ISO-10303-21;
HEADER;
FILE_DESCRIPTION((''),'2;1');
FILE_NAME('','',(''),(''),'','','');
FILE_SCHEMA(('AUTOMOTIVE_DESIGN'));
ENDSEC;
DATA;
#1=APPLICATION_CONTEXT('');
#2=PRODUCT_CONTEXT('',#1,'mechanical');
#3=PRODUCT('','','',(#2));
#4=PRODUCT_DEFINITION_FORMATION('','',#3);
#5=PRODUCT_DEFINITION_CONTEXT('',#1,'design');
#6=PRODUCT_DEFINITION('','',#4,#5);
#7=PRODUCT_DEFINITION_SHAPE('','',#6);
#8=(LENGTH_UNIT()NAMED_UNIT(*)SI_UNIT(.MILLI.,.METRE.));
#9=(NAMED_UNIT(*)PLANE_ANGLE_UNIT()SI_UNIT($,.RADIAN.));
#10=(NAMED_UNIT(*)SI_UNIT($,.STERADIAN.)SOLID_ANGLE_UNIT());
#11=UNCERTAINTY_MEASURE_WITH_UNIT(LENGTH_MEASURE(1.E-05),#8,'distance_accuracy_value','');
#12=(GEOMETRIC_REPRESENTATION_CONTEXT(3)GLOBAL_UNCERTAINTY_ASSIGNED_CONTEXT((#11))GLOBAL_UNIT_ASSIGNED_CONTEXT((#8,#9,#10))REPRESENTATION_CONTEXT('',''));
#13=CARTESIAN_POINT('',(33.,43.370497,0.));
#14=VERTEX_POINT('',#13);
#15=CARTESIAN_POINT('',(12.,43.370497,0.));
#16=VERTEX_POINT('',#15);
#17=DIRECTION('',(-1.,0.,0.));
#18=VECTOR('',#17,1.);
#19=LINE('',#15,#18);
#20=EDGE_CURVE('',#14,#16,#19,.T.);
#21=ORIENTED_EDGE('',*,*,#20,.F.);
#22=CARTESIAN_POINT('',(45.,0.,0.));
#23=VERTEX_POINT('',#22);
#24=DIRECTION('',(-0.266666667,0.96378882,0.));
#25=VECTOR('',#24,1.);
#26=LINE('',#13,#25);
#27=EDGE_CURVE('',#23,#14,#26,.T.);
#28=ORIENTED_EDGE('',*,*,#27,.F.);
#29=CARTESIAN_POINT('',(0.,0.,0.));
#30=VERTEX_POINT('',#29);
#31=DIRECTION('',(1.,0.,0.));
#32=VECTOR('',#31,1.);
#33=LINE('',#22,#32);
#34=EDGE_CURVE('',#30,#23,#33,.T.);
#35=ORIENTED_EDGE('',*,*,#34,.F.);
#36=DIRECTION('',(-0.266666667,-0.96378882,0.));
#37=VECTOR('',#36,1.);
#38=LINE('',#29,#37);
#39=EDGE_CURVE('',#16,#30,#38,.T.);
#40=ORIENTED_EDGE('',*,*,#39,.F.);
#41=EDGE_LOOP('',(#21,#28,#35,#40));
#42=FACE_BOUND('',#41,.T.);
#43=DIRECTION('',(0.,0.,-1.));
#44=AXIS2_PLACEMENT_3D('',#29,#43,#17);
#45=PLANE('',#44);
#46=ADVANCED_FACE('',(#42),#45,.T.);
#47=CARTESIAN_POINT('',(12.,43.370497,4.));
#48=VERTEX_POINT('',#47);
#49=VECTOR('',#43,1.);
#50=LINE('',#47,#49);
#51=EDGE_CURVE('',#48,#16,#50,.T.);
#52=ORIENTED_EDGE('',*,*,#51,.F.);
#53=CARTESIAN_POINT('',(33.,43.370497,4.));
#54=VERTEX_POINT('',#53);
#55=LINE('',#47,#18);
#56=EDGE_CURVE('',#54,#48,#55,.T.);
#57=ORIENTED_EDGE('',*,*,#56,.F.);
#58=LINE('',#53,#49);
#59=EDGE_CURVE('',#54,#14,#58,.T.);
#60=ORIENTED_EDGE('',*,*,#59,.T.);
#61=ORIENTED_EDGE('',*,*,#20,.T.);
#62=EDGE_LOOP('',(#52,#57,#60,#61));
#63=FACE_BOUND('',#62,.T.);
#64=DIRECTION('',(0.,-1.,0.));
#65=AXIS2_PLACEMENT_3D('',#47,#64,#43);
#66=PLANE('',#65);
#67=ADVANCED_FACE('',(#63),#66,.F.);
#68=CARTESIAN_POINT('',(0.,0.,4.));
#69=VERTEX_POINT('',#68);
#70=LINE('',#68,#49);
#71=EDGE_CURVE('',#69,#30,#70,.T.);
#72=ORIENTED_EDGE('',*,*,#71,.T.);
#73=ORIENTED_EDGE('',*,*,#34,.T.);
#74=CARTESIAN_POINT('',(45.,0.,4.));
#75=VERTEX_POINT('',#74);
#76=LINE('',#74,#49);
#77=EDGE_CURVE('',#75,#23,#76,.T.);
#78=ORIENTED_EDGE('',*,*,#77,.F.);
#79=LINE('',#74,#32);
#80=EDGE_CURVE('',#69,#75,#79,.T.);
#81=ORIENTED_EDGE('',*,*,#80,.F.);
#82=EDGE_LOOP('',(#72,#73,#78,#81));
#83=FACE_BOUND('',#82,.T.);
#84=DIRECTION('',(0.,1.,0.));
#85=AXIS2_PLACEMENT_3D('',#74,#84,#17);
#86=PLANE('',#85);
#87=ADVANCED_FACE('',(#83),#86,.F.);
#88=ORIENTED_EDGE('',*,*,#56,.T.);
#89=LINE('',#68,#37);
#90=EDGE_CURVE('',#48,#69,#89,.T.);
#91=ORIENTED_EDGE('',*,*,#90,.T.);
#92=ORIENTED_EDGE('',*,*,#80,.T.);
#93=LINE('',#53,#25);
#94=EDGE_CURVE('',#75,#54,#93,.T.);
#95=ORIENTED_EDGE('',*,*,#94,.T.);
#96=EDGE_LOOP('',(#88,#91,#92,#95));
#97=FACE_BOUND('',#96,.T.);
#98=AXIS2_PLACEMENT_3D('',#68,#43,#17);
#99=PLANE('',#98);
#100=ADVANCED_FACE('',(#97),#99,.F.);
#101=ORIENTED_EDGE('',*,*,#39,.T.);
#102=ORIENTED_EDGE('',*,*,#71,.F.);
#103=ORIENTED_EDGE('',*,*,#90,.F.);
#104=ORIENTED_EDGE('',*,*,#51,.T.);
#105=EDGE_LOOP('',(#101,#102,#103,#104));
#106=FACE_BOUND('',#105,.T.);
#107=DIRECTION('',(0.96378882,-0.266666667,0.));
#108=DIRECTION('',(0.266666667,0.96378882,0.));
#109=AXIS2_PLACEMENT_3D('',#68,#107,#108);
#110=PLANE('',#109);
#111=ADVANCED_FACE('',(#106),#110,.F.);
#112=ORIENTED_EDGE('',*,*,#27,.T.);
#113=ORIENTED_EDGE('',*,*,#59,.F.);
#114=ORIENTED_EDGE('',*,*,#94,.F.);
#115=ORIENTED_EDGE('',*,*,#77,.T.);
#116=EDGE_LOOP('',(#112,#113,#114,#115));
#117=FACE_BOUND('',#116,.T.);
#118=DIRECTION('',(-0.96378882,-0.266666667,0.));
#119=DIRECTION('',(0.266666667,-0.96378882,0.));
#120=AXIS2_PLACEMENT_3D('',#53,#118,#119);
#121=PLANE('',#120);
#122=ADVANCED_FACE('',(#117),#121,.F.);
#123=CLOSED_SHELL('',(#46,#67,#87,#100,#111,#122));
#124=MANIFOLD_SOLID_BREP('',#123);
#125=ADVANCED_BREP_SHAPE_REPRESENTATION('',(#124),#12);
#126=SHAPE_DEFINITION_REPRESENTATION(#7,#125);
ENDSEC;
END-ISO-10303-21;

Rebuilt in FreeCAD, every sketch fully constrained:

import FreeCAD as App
import Part
import Sketcher
from FreeCAD import Vector
Q = App.Units.Quantity

doc = App.newDocument("Part")
body = doc.addObject("PartDesign::Body", "Body")

# Sketch on XY plane
sketch1 = body.newObject("Sketcher::SketchObject", "Sketch")
sketch1.AttachmentSupport = (doc.getObject("XY_Plane"), [""])
sketch1.MapMode = "FlatFace"
sketch1.addGeometry([
    Part.LineSegment(Vector(12, 43.370497, 0), Vector(0, 0, 0)),
    Part.LineSegment(Vector(0, 0, 0), Vector(45, 0, 0)),
    Part.LineSegment(Vector(45, 0, 0), Vector(33, 43.370497, 0)),
    Part.LineSegment(Vector(33, 43.370497, 0), Vector(12, 43.370497, 0)),
], False)
sketch1.addConstraint([
    Sketcher.Constraint("Coincident", 0, 2, 1, 1),
    Sketcher.Constraint("Coincident", 1, 2, 2, 1),
    Sketcher.Constraint("Coincident", 2, 2, 3, 1),
    Sketcher.Constraint("Coincident", 3, 2, 0, 1),
    Sketcher.Constraint("Horizontal", 1),
    Sketcher.Constraint("Horizontal", 3),
    Sketcher.Constraint("Coincident", 0, 2, -1, 1),
    Sketcher.Constraint("Equal", 0, 2),
    Sketcher.Constraint("DistanceX", 1, 1, 1, 2, Q("45 mm")),
    Sketcher.Constraint("DistanceX", 3, 2, 3, 1, Q("21 mm")),
    Sketcher.Constraint("Distance", 0, Q("45 mm")),
])
pad1 = body.newObject("PartDesign::Pad", "Pad")
pad1.Profile = sketch1
pad1.Length = 4

doc.recompute()
